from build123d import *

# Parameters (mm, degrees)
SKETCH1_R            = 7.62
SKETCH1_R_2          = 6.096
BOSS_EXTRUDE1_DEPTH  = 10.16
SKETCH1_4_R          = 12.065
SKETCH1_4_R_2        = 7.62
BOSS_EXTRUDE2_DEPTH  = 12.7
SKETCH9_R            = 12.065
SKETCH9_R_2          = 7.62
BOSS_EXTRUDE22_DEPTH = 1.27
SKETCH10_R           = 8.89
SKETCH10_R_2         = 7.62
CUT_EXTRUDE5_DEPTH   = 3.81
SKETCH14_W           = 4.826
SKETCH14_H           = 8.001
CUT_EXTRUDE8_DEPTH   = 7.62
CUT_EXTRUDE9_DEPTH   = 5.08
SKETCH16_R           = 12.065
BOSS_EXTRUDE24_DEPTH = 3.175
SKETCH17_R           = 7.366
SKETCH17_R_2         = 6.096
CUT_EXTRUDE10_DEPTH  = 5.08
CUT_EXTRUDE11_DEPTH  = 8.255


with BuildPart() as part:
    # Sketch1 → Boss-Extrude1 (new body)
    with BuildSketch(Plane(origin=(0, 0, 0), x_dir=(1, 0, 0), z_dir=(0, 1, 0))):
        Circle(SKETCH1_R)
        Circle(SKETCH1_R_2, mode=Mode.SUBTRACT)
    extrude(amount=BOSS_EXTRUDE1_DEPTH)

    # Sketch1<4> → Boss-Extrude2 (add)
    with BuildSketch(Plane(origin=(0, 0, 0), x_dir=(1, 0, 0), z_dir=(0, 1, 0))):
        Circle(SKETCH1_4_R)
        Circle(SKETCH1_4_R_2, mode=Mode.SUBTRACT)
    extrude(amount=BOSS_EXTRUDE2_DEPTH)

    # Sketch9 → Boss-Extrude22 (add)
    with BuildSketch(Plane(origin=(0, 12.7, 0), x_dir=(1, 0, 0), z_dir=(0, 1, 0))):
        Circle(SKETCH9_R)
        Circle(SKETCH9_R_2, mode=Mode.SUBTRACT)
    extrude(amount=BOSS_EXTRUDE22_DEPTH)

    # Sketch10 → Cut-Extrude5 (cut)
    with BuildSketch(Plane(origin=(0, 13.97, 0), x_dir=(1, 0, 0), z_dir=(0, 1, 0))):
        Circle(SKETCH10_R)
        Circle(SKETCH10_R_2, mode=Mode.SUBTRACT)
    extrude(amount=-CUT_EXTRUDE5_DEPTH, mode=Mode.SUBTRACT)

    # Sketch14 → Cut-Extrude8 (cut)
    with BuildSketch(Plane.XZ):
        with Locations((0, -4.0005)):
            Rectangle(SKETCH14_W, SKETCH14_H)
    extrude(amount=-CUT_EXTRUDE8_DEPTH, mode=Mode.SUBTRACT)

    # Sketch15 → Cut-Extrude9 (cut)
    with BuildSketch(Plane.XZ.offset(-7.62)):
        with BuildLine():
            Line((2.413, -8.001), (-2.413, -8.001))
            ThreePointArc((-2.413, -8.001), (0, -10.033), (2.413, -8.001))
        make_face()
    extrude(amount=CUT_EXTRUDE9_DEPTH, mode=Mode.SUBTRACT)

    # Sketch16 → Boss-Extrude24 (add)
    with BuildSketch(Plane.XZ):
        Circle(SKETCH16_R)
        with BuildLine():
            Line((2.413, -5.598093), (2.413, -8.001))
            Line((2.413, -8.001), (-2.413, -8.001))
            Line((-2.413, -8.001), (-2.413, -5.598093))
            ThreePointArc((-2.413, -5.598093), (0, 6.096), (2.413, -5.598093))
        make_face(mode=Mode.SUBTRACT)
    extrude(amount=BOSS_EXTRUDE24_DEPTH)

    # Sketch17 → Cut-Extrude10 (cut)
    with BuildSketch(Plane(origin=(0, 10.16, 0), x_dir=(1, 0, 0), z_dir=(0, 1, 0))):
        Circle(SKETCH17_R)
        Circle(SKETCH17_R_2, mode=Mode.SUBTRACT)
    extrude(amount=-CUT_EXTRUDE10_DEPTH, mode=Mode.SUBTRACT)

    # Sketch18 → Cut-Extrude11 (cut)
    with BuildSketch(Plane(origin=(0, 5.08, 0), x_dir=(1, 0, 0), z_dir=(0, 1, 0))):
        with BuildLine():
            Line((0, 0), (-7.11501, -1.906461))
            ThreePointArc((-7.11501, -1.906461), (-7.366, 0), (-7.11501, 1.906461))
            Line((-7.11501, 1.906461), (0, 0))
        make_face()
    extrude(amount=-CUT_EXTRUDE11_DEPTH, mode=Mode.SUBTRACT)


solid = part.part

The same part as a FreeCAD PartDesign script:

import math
import FreeCAD as App
import Part
import Sketcher
from FreeCAD import Vector
Q = App.Units.Quantity


def add_polygon(sketch, points):
    """Adds a closed chain of lines whose ends are joined by coincident constraints."""
    first, n = sketch.GeometryCount, len(points)
    for a, b in zip(points, points[1:] + points[:1]):
        sketch.addGeometry(Part.LineSegment(App.Vector(*a, 0), App.Vector(*b, 0)), False)
    for i in range(n):
        sketch.addConstraint(Sketcher.Constraint("Coincident", first + i, 2, first + (i + 1) % n, 1))

doc = App.newDocument("Part")
body = doc.addObject("PartDesign::Body", "Body")

sketch1 = doc.addObject("Sketcher::SketchObject", "Sketch")
body.addObject(sketch1)
sketch1.AttachmentSupport = (doc.XZ_Plane, [""])
sketch1.MapMode = "FlatFace"
sketch1.addGeometry([
    Part.Circle(Vector(0, 0, 0), Vector(0, 0, 1), 8),
    Part.Circle(Vector(0, 0, 0), Vector(0, 0, 1), 6),
], False)
sketch1.addConstraint([
    Sketcher.Constraint("Coincident", 0, 3, -1, 1),
    Sketcher.Constraint("Coincident", 1, 3, -1, 1),
    Sketcher.Constraint("Diameter", 0, Q("0.6 in")),
    Sketcher.Constraint("Diameter", 1, Q("0.48 in")),
])
pad1 = doc.addObject("PartDesign::Pad", "Pad")
body.addObject(pad1)
pad1.Profile = sketch1
pad1.Length = Q("0.4 in")
pad1.Reversed = True

sketch2 = doc.addObject("Sketcher::SketchObject", "Sketch001")
body.addObject(sketch2)
sketch2.AttachmentSupport = (doc.XZ_Plane, [""])
sketch2.MapMode = "FlatFace"
sketch2.addGeometry([
    Part.Circle(Vector(0, 0, 0), Vector(0, 0, 1), 12),
    Part.Circle(Vector(0, 0, 0), Vector(0, 0, 1), 8),
], False)
sketch2.addConstraint([
    Sketcher.Constraint("Coincident", 0, 3, -1, 1),
    Sketcher.Constraint("Coincident", 1, 3, -1, 1),
    Sketcher.Constraint("Diameter", 1, Q("0.6 in")),
    Sketcher.Constraint("Diameter", 0, Q("0.95 in")),
])
pad2 = doc.addObject("PartDesign::Pad", "Pad001")
body.addObject(pad2)
pad2.Profile = sketch2
pad2.Length = Q("0.5 in")
pad2.Reversed = True

sketch3 = doc.addObject("Sketcher::SketchObject", "Sketch002")
body.addObject(sketch3)
sketch3.AttachmentSupport = (doc.XZ_Plane, [""])
sketch3.MapMode = "FlatFace"
sketch3.AttachmentOffset = App.Placement(Vector(0, 0, -0.5 * 25.4), App.Rotation())
sketch3.addGeometry([
    Part.Circle(Vector(0, 0, 0), Vector(0, 0, 1), 12),
    Part.Circle(Vector(0, 0, 0), Vector(0, 0, 1), 8),
], False)
sketch3.addConstraint([
    Sketcher.Constraint("Coincident", 0, 3, -1, 1),
    Sketcher.Constraint("Coincident", 1, 3, -1, 1),
    Sketcher.Constraint("Diameter", 1, Q("0.6 in")),
    Sketcher.Constraint("Diameter", 0, Q("0.95 in")),
])
pad3 = doc.addObject("PartDesign::Pad", "Pad002")
body.addObject(pad3)
pad3.Profile = sketch3
pad3.Length = Q("0.05 in")
pad3.Reversed = True

sketch4 = doc.addObject("Sketcher::SketchObject", "Sketch003")
body.addObject(sketch4)
sketch4.AttachmentSupport = (doc.XZ_Plane, [""])
sketch4.MapMode = "FlatFace"
sketch4.AttachmentOffset = App.Placement(Vector(0, 0, -0.55 * 25.4), App.Rotation())
sketch4.addGeometry([
    Part.Circle(Vector(0, 0, 0), Vector(0, 0, 1), 9),
    Part.Circle(Vector(0, 0, 0), Vector(0, 0, 1), 8),
], False)
sketch4.addConstraint([
    Sketcher.Constraint("Coincident", 0, 3, -1, 1),
    Sketcher.Constraint("Coincident", 1, 3, -1, 1),
    Sketcher.Constraint("Diameter", 0, Q("0.7 in")),
    Sketcher.Constraint("Diameter", 1, Q("0.6 in")),
])
pocket1 = doc.addObject("PartDesign::Pocket", "Pocket")
body.addObject(pocket1)
pocket1.Profile = sketch4
pocket1.Length = Q("0.15 in")
pocket1.Reversed = True

sketch5 = doc.addObject("Sketcher::SketchObject", "Sketch004")
body.addObject(sketch5)
sketch5.AttachmentSupport = (doc.XZ_Plane, [""])
sketch5.MapMode = "FlatFace"
add_polygon(sketch5, [(-2.4, 0), (-2.4, -8), (2.4, -8), (2.4, 0)])
sketch5.addConstraint([
    Sketcher.Constraint("Vertical", 0),
    Sketcher.Constraint("Horizontal", 1),
    Sketcher.Constraint("Vertical", 2),
    Sketcher.Constraint("Horizontal", 3),
    Sketcher.Constraint("Symmetric", 2, 2, 3, 2, -1, 1),
    Sketcher.Constraint("DistanceX", 1, 1, 1, 2, Q("0.19 in")),
    Sketcher.Constraint("DistanceY", 0, 2, 0, 1, Q("0.315 in")),
])
pocket2 = doc.addObject("PartDesign::Pocket", "Pocket001")
body.addObject(pocket2)
pocket2.Profile = sketch5
pocket2.Length = Q("0.3 in")

sketch6 = doc.addObject("Sketcher::SketchObject", "Sketch005")
body.addObject(sketch6)
sketch6.AttachmentSupport = (doc.XZ_Plane, [""])
sketch6.MapMode = "FlatFace"
sketch6.AttachmentOffset = App.Placement(Vector(0, 0, -0.3 * 25.4), App.Rotation())
sketch6.addGeometry([
    Part.LineSegment(Vector(2.4, -8, 0), Vector(-2.4, -8, 0)),
    Part.ArcOfCircle(Part.Circle(Vector(0, -7.6, 0), Vector(0, 0, 1), 2.4), math.radians(-170), math.radians(-10)),
], False)
sketch6.addConstraint([
    Sketcher.Constraint("Coincident", 0, 1, 1, 2),
    Sketcher.Constraint("Coincident", 1, 1, 0, 2),
    Sketcher.Constraint("Horizontal", 0),
    Sketcher.Constraint("PointOnObject", 1, 3, -2),
    Sketcher.Constraint("DistanceX", 0, 2, 0, 1, Q("0.19 in")),
    Sketcher.Constraint("DistanceY", 0, 1, -1, 1, Q("0.315 in")),
    Sketcher.Constraint("Radius", 1, Q("2.448719 mm")),
])
pocket3 = doc.addObject("PartDesign::Pocket", "Pocket002")
body.addObject(pocket3)
pocket3.Profile = sketch6
pocket3.Length = Q("0.2 in")
pocket3.Reversed = True

sketch7 = doc.addObject("Sketcher::SketchObject", "Sketch006")
body.addObject(sketch7)
sketch7.AttachmentSupport = (doc.XZ_Plane, [""])
sketch7.MapMode = "FlatFace"
sketch7.addGeometry([
    Part.Circle(Vector(0, 0, 0), Vector(0, 0, 1), 12.1),
    Part.ArcOfCircle(Part.Circle(Vector(0, 0, 0), Vector(0, 0, 1), 6.1), math.radians(-67), math.radians(247)),
    Part.LineSegment(Vector(2.4, -5.6, 0), Vector(2.4, -8, 0)),
    Part.LineSegment(Vector(2.4, -8, 0), Vector(-2.4, -8, 0)),
    Part.LineSegment(Vector(-2.4, -8, 0), Vector(-2.4, -5.6, 0)),
], False)
sketch7.addConstraint([
    Sketcher.Constraint("Coincident", 1, 1, 2, 1),
    Sketcher.Constraint("Coincident", 2, 2, 3, 1),
    Sketcher.Constraint("Coincident", 3, 2, 4, 1),
    Sketcher.Constraint("Coincident", 4, 2, 1, 2),
    Sketcher.Constraint("Vertical", 2),
    Sketcher.Constraint("Horizontal", 3),
    Sketcher.Constraint("Vertical", 4),
    Sketcher.Constraint("Coincident", 0, 3, -1, 1),
    Sketcher.Constraint("Coincident", 1, 3, -1, 1),
    Sketcher.Constraint("Horizontal", 1, 1, 4, 2),
    Sketcher.Constraint("Diameter", 0, Q("0.95 in")),
    Sketcher.Constraint("Radius", 1, Q("0.24 in")),
    Sketcher.Constraint("DistanceX", 3, 2, 3, 1, Q("0.19 in")),
    Sketcher.Constraint("DistanceY", 2, 2, -1, 1, Q("0.315 in")),
])
pad4 = doc.addObject("PartDesign::Pad", "Pad003")
body.addObject(pad4)
pad4.Profile = sketch7
pad4.Length = Q("0.125 in")

sketch8 = doc.addObject("Sketcher::SketchObject", "Sketch007")
body.addObject(sketch8)
sketch8.AttachmentSupport = (doc.XZ_Plane, [""])
sketch8.MapMode = "FlatFace"
sketch8.AttachmentOffset = App.Placement(Vector(0, 0, -0.4 * 25.4), App.Rotation())
sketch8.addGeometry([
    Part.Circle(Vector(0, 0, 0), Vector(0, 0, 1), 7),
    Part.Circle(Vector(0, 0, 0), Vector(0, 0, 1), 6),
], False)
sketch8.addConstraint([
    Sketcher.Constraint("Coincident", 0, 3, -1, 1),
    Sketcher.Constraint("Coincident", 1, 3, -1, 1),
    Sketcher.Constraint("Diameter", 0, Q("0.58 in")),
    Sketcher.Constraint("Diameter", 1, Q("0.48 in")),
])
pocket4 = doc.addObject("PartDesign::Pocket", "Pocket003")
body.addObject(pocket4)
pocket4.Profile = sketch8
pocket4.Length = Q("0.2 in")
pocket4.Reversed = True

sketch9 = doc.addObject("Sketcher::SketchObject", "Sketch008")
body.addObject(sketch9)
sketch9.AttachmentSupport = (doc.XZ_Plane, [""])
sketch9.MapMode = "FlatFace"
sketch9.AttachmentOffset = App.Placement(Vector(0, 0, -0.2 * 25.4), App.Rotation())
sketch9.addGeometry([
    Part.LineSegment(Vector(-7.1, 1.9, 0), Vector(0, 0, 0)),
    Part.LineSegment(Vector(0, 0, 0), Vector(-7.1, -1.9, 0)),
    Part.ArcOfCircle(Part.Circle(Vector(0, 0, 0), Vector(0, 0, 1), 7.4), math.radians(165), math.radians(195)),
], False)
sketch9.addConstraint([
    Sketcher.Constraint("Coincident", 0, 2, 1, 1),
    Sketcher.Constraint("Coincident", 1, 2, 2, 2),
    Sketcher.Constraint("Coincident", 2, 1, 0, 1),
    Sketcher.Constraint("Coincident", 2, 3, -1, 1),
    Sketcher.Constraint("Coincident", 0, 2, -1, 1),
    Sketcher.Constraint("Vertical", 1, 2, 2, 1),
    Sketcher.Constraint("Angle", 0, Q("-14.999999 deg")),
    Sketcher.Constraint("Distance", 0, Q("0.29 in")),
])
pocket5 = doc.addObject("PartDesign::Pocket", "Pocket004")
body.addObject(pocket5)
pocket5.Profile = sketch9
pocket5.Length = Q("0.325 in")
pocket5.Reversed = True

doc.recompute()
